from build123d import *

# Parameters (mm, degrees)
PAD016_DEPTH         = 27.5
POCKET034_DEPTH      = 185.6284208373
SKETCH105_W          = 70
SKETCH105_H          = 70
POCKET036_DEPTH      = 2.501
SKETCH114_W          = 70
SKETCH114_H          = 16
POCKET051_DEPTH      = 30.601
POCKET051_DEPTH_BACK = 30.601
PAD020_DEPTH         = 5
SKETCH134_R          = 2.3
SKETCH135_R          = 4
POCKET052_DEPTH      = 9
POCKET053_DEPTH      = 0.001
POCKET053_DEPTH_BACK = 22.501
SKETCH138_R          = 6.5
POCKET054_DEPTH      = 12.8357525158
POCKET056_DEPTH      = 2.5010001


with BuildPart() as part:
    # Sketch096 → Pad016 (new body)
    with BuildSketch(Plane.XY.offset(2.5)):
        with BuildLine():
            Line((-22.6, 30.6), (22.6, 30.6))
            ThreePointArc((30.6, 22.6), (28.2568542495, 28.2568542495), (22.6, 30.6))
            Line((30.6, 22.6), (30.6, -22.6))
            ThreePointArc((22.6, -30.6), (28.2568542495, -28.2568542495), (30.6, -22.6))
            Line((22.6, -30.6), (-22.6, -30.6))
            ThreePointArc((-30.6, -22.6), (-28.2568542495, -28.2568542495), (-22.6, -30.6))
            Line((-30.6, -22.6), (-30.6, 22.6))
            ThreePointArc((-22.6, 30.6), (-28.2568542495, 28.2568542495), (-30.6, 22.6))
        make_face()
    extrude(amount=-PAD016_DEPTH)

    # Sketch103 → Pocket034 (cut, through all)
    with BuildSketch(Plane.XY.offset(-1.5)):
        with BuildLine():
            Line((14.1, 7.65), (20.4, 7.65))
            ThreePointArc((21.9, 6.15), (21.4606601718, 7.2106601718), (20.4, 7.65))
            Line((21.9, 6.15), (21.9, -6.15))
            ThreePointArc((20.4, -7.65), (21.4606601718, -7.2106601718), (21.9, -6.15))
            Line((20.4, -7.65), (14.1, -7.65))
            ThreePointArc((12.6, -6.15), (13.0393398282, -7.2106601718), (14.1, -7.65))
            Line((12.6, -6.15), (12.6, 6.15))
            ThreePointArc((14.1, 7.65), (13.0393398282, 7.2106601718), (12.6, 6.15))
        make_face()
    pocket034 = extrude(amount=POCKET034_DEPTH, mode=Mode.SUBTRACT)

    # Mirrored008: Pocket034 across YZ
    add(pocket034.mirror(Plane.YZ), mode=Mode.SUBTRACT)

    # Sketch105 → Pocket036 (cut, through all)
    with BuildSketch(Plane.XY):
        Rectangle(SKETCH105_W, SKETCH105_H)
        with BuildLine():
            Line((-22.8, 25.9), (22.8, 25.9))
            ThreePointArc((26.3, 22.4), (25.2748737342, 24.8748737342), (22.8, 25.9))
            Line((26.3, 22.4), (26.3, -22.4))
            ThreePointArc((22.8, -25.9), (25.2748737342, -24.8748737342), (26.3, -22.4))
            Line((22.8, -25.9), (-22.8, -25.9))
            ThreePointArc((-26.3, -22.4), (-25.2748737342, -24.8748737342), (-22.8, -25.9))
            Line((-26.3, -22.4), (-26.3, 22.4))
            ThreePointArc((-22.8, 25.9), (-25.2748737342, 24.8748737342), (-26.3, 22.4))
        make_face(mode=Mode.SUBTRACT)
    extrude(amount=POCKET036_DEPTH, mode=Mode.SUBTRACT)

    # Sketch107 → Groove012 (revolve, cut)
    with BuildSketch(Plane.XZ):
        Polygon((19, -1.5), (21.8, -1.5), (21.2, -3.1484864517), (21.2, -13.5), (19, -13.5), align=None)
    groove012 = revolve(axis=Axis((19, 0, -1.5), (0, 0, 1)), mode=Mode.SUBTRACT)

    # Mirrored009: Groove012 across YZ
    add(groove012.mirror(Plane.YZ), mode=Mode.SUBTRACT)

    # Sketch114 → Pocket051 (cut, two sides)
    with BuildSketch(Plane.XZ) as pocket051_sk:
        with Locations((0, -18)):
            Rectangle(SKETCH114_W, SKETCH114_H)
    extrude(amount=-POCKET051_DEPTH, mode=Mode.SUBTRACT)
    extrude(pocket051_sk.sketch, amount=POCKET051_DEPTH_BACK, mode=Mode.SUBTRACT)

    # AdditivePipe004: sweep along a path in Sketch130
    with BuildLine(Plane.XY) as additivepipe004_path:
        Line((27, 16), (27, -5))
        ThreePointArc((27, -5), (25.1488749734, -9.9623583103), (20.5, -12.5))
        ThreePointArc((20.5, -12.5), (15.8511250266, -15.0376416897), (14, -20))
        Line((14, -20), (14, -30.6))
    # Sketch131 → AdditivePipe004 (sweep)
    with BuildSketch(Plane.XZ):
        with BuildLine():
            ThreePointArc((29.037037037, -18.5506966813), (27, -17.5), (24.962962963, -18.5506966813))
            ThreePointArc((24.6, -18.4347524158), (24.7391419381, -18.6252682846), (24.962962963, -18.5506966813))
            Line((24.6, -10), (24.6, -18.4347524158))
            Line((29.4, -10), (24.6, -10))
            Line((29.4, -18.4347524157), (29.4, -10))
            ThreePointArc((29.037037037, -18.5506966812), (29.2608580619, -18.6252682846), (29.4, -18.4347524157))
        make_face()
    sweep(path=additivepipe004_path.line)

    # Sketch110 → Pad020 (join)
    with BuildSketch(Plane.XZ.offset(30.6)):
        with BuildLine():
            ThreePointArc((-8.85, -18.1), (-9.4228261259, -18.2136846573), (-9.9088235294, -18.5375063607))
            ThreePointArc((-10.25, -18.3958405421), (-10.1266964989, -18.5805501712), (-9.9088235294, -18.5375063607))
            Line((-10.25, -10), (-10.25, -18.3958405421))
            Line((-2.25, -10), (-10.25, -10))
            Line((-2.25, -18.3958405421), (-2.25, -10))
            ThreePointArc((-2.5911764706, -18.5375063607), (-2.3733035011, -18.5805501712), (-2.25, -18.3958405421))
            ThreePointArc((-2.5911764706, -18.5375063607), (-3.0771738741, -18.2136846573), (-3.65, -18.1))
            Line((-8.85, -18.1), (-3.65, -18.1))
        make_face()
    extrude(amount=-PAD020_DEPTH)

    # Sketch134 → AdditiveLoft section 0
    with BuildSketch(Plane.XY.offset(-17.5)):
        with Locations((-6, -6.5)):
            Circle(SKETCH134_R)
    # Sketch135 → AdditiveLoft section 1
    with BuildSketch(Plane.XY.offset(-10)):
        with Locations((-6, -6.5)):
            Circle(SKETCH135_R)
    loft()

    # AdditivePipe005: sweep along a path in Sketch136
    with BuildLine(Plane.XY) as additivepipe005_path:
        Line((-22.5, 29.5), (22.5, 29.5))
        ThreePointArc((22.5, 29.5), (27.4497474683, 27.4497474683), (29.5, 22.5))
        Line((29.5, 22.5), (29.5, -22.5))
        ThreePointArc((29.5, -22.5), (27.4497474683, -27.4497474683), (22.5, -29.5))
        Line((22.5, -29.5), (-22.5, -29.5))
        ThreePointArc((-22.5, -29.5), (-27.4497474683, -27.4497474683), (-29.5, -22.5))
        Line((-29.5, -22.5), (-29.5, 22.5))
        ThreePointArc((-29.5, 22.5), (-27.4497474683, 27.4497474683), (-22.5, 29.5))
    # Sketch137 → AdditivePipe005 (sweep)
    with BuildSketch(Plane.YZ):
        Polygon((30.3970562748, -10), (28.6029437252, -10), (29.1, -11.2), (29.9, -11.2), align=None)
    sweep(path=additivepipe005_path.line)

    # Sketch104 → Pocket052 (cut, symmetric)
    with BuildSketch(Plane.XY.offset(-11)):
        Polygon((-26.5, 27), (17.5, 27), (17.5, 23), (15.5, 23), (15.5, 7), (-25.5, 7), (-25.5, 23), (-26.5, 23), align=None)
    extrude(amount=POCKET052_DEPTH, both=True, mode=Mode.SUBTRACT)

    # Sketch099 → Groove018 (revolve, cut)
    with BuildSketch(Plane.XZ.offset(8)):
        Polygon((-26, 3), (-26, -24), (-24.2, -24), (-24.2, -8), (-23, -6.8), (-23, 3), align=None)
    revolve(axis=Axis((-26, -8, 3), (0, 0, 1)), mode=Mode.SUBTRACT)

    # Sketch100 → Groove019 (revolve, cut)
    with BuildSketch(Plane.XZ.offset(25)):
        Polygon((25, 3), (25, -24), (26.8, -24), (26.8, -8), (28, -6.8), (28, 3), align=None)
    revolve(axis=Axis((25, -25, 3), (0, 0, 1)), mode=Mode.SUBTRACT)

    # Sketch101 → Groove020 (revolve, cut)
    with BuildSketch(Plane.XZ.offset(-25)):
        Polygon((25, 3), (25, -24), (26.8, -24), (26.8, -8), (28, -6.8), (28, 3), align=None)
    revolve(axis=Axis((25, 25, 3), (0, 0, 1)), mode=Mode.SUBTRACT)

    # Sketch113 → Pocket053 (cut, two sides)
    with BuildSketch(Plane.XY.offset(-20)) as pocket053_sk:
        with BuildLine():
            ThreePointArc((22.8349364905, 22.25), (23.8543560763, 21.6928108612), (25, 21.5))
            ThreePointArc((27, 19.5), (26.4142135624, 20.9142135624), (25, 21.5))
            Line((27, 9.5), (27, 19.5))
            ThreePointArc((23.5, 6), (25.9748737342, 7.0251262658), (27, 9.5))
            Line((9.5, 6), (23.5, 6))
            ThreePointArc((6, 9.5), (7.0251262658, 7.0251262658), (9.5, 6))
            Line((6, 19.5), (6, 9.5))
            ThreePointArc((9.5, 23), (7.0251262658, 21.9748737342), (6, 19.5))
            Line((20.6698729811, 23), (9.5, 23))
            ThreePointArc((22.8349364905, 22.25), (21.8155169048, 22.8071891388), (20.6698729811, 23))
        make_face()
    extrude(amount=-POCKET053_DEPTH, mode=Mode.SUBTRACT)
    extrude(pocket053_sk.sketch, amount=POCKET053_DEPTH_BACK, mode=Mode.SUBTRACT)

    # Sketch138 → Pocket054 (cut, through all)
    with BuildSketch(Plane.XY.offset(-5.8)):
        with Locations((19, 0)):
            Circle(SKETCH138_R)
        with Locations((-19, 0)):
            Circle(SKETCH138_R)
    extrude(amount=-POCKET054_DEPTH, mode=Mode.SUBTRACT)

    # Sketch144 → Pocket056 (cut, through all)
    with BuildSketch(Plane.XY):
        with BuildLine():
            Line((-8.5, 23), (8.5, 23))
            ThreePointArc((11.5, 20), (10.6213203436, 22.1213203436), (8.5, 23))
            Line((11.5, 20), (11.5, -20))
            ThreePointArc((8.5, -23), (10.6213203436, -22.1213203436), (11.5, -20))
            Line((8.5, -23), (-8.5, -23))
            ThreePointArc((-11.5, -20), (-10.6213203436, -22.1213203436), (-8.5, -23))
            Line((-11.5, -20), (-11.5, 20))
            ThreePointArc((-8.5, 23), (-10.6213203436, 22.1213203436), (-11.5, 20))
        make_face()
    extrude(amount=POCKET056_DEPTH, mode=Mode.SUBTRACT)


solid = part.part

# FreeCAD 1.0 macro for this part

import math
import FreeCAD as App
import Part
import Sketcher
Q = App.Units.Quantity

doc = App.newDocument("Part")
body = doc.addObject("PartDesign::Body", "Body")

# Sketch on XY plane
sketch1 = doc.addObject("Sketcher::SketchObject", "Sketch")
body.addObject(sketch1)
sketch1.AttachmentSupport = (doc.XY_Plane, [""])
sketch1.MapMode = "FlatFace"
sketch1.AttachmentOffset = App.Placement(App.Vector(0, 0, 2.5), App.Rotation())
sketch1.addGeometry([
    Part.LineSegment(App.Vector(23, 31, 0), App.Vector(-23, 31, 0)),  # 0
    Part.ArcOfCircle(Part.Circle(App.Vector(-23, 23, 0), App.Vector(0, 0, 1), 8), math.radians(90), math.radians(180)),  # 1
    Part.LineSegment(App.Vector(-31, 23, 0), App.Vector(-31, -23, 0)),  # 2
    Part.ArcOfCircle(Part.Circle(App.Vector(-23, -23, 0), App.Vector(0, 0, 1), 8), math.radians(180), math.radians(270)),  # 3
    Part.LineSegment(App.Vector(-23, -31, 0), App.Vector(23, -31, 0)),  # 4
    Part.ArcOfCircle(Part.Circle(App.Vector(23, -23, 0), App.Vector(0, 0, 1), 8), math.radians(-90), math.radians(0)),  # 5
    Part.LineSegment(App.Vector(31, -23, 0), App.Vector(31, 23, 0)),  # 6
    Part.ArcOfCircle(Part.Circle(App.Vector(23, 23, 0), App.Vector(0, 0, 1), 8), math.radians(0), math.radians(90)),  # 7
], False)
sketch1.addConstraint([
    Sketcher.Constraint("Tangent", 0, 2, 1, 1),
    Sketcher.Constraint("Tangent", 1, 2, 2, 1),
    Sketcher.Constraint("Tangent", 2, 2, 3, 1),
    Sketcher.Constraint("Tangent", 3, 2, 4, 1),
    Sketcher.Constraint("Tangent", 4, 2, 5, 1),
    Sketcher.Constraint("Tangent", 5, 2, 6, 1),
    Sketcher.Constraint("Tangent", 6, 2, 7, 1),
    Sketcher.Constraint("Tangent", 7, 2, 0, 1),
    Sketcher.Constraint("Horizontal", 0),
    Sketcher.Constraint("Vertical", 2),
    Sketcher.Constraint("Horizontal", 4),
    Sketcher.Constraint("Vertical", 6),
    Sketcher.Constraint("Equal", 1, 3),
    Sketcher.Constraint("Equal", 3, 5),
    Sketcher.Constraint("Equal", 5, 7),
    Sketcher.Constraint("Symmetric", 1, 3, 5, 3, -1, 1),
    Sketcher.Constraint("Equal", 4, 2),
    Sketcher.Constraint("Radius", 1, Q("8 mm")),
    Sketcher.Constraint("DistanceX", 0, 2, 0, 1, Q("45.2 mm")),
])
pad1 = doc.addObject("PartDesign::Pad", "Pad")
body.addObject(pad1)
pad1.Profile = sketch1
pad1.Length = 27.5
pad1.Reversed = True

# Sketch on XY plane
sketch2 = doc.addObject("Sketcher::SketchObject", "Sketch001")
body.addObject(sketch2)
sketch2.AttachmentSupport = (doc.XY_Plane, [""])
sketch2.MapMode = "FlatFace"
sketch2.AttachmentOffset = App.Placement(App.Vector(0, 0, -1.5), App.Rotation())
sketch2.addGeometry([
    Part.LineSegment(App.Vector(20.4, 7.7, 0), App.Vector(14.1, 7.7, 0)),  # 0
    Part.ArcOfCircle(Part.Circle(App.Vector(14.1, 6.2, 0), App.Vector(0, 0, 1), 1.5), math.radians(90), math.radians(180)),  # 1
    Part.LineSegment(App.Vector(12.6, 6.2, 0), App.Vector(12.6, -6.2, 0)),  # 2
    Part.ArcOfCircle(Part.Circle(App.Vector(14.1, -6.2, 0), App.Vector(0, 0, 1), 1.5), math.radians(180), math.radians(270)),  # 3
    Part.LineSegment(App.Vector(14.1, -7.7, 0), App.Vector(20.4, -7.7, 0)),  # 4
    Part.ArcOfCircle(Part.Circle(App.Vector(20.4, -6.2, 0), App.Vector(0, 0, 1), 1.5), math.radians(-90), math.radians(0)),  # 5
    Part.LineSegment(App.Vector(21.9, -6.2, 0), App.Vector(21.9, 6.2, 0)),  # 6
    Part.ArcOfCircle(Part.Circle(App.Vector(20.4, 6.2, 0), App.Vector(0, 0, 1), 1.5), math.radians(0), math.radians(90)),  # 7
], False)
sketch2.addConstraint([
    Sketcher.Constraint("Tangent", 0, 2, 1, 1),
    Sketcher.Constraint("Tangent", 1, 2, 2, 1),
    Sketcher.Constraint("Tangent", 2, 2, 3, 1),
    Sketcher.Constraint("Tangent", 3, 2, 4, 1),
    Sketcher.Constraint("Tangent", 4, 2, 5, 1),
    Sketcher.Constraint("Tangent", 5, 2, 6, 1),
    Sketcher.Constraint("Tangent", 6, 2, 7, 1),
    Sketcher.Constraint("Tangent", 7, 2, 0, 1),
    Sketcher.Constraint("Horizontal", 0),
    Sketcher.Constraint("Vertical", 2),
    Sketcher.Constraint("Horizontal", 4),
    Sketcher.Constraint("Vertical", 6),
    Sketcher.Constraint("Equal", 1, 3),
    Sketcher.Constraint("Equal", 3, 5),
    Sketcher.Constraint("Equal", 5, 7),
    Sketcher.Constraint("Radius", 1, Q("1.5 mm")),
    Sketcher.Constraint("DistanceX", 0, 2, 0, 1, Q("6.3 mm")),
    Sketcher.Constraint("DistanceY", 2, 2, 2, 1, Q("12.3 mm")),
    Sketcher.Constraint("DistanceX", -1, 1, 1, 3, Q("14.1 mm")),
    Sketcher.Constraint("DistanceY", -1, 1, 1, 3, Q("6.15 mm")),
])
pocket1 = doc.addObject("PartDesign::Pocket", "Pocket")
body.addObject(pocket1)
pocket1.Profile = sketch2
pocket1.Type = "ThroughAll"
pocket1.Reversed = True
doc.recompute()

mirrored = doc.addObject("PartDesign::Mirrored", "Mirrored")
body.addObject(mirrored)
mirrored.Originals = [pocket1]
mirrored.MirrorPlane = (doc.YZ_Plane, [""])
body.Tip = mirrored

# Sketch on XY plane
sketch3 = doc.addObject("Sketcher::SketchObject", "Sketch002")
body.addObject(sketch3)
sketch3.AttachmentSupport = (doc.XY_Plane, [""])
sketch3.MapMode = "FlatFace"
sketch3.addGeometry([
    Part.LineSegment(App.Vector(-35, 35, 0), App.Vector(-35, -35, 0)),  # 0
    Part.LineSegment(App.Vector(-35, -35, 0), App.Vector(35, -35, 0)),  # 1
    Part.LineSegment(App.Vector(35, -35, 0), App.Vector(35, 35, 0)),  # 2
    Part.LineSegment(App.Vector(35, 35, 0), App.Vector(-35, 35, 0)),  # 3
    Part.ArcOfCircle(Part.Circle(App.Vector(-22.8, 22.4, 0), App.Vector(0, 0, 1), 3.5), math.radians(90), math.radians(180)),  # 4
    Part.LineSegment(App.Vector(-22.8, 25.9, 0), App.Vector(22.8, 25.9, 0)),  # 5
    Part.ArcOfCircle(Part.Circle(App.Vector(22.8, 22.4, 0), App.Vector(0, 0, 1), 3.5), math.radians(0), math.radians(90)),  # 6
    Part.LineSegment(App.Vector(26.3, 22.4, 0), App.Vector(26.3, -22.4, 0)),  # 7
    Part.ArcOfCircle(Part.Circle(App.Vector(22.8, -22.4, 0), App.Vector(0, 0, 1), 3.5), math.radians(-90), math.radians(0)),  # 8
    Part.LineSegment(App.Vector(22.8, -25.9, 0), App.Vector(-22.8, -25.9, 0)),  # 9
    Part.ArcOfCircle(Part.Circle(App.Vector(-22.8, -22.4, 0), App.Vector(0, 0, 1), 3.5), math.radians(180), math.radians(270)),  # 10
    Part.LineSegment(App.Vector(-26.3, -22.4, 0), App.Vector(-26.3, 22.4, 0)),  # 11
], False)
sketch3.addConstraint([
    Sketcher.Constraint("Coincident", 0, 2, 1, 1),
    Sketcher.Constraint("Coincident", 1, 2, 2, 1),
    Sketcher.Constraint("Coincident", 2, 2, 3, 1),
    Sketcher.Constraint("Coincident", 3, 2, 0, 1),
    Sketcher.Constraint("Tangent", 4, 1, 5, 1),
    Sketcher.Constraint("Tangent", 5, 2, 6, 2),
    Sketcher.Constraint("Tangent", 6, 1, 7, 1),
    Sketcher.Constraint("Tangent", 7, 2, 8, 2),
    Sketcher.Constraint("Tangent", 8, 1, 9, 1),
    Sketcher.Constraint("Tangent", 9, 2, 10, 2),
    Sketcher.Constraint("Tangent", 10, 1, 11, 1),
    Sketcher.Constraint("Tangent", 11, 2, 4, 2),
    Sketcher.Constraint("Vertical", 0),
    Sketcher.Constraint("Horizontal", 1),
    Sketcher.Constraint("Vertical", 2),
    Sketcher.Constraint("Horizontal", 3),
    Sketcher.Constraint("Horizontal", 5),
    Sketcher.Constraint("Vertical", 7),
    Sketcher.Constraint("Horizontal", 9),
    Sketcher.Constraint("Vertical", 11),
    Sketcher.Constraint("Equal", 4, 6),
    Sketcher.Constraint("Equal", 6, 8),
    Sketcher.Constraint("Equal", 8, 10),
    Sketcher.Constraint("Symmetric", 4, 3, 8, 3, -1, 1),
    Sketcher.Constraint("Symmetric", 0, 2, 2, 2, -1, 1),
    Sketcher.Constraint("Equal", 3, 0),
    Sketcher.Constraint("Radius", 4, Q("3.5 mm")),
    Sketcher.Constraint("DistanceX", 1, 1, 1, 2, Q("70 mm")),
    Sketcher.Constraint("DistanceX", 5, 1, 5, 2, Q("45.6 mm")),
    Sketcher.Constraint("DistanceY", 7, 2, 7, 1, Q("44.8 mm")),
])
pocket2 = doc.addObject("PartDesign::Pocket", "Pocket001")
body.addObject(pocket2)
pocket2.Profile = sketch3
pocket2.Type = "ThroughAll"
pocket2.Reversed = True

# Sketch on XZ plane
sketch4 = doc.addObject("Sketcher::SketchObject", "Sketch003")
body.addObject(sketch4)
sketch4.AttachmentSupport = (doc.XZ_Plane, [""])
sketch4.MapMode = "FlatFace"
sketch4.addGeometry([
    Part.LineSegment(App.Vector(21.8, -1.5, 0), App.Vector(19, -1.5, 0)),  # 0
    Part.LineSegment(App.Vector(19, -1.5, 0), App.Vector(19, -13.5, 0)),  # 1
    Part.LineSegment(App.Vector(19, -13.5, 0), App.Vector(21.2, -13.5, 0)),  # 2
    Part.LineSegment(App.Vector(21.2, -13.5, 0), App.Vector(21.2, -3.1, 0)),  # 3
    Part.LineSegment(App.Vector(21.2, -3.1, 0), App.Vector(21.8, -1.5, 0)),  # 4
], False)
sketch4.addGeometry(Part.LineSegment(App.Vector(19, -13.5, 0), App.Vector(19, -1.5, 0)), True)  # axis
sketch4.addConstraint([
    Sketcher.Constraint("Coincident", 0, 2, 1, 1),
    Sketcher.Constraint("Coincident", 1, 2, 2, 1),
    Sketcher.Constraint("Coincident", 2, 2, 3, 1),
    Sketcher.Constraint("Coincident", 3, 2, 4, 1),
    Sketcher.Constraint("Coincident", 4, 2, 0, 1),
    Sketcher.Constraint("Horizontal", 0),
    Sketcher.Constraint("Vertical", 1),
    Sketcher.Constraint("Horizontal", 2),
    Sketcher.Constraint("Vertical", 3),
    Sketcher.Constraint("Vertical", 5),
    Sketcher.Constraint("Coincident", 5, 1, 1, 2),
    Sketcher.Constraint("Horizontal", 4, 2, 5, 2),
    Sketcher.Constraint("DistanceY", 1, 2, 1, 1, Q("12 mm")),
    Sketcher.Constraint("Angle", 4, Q("70 deg")),
    Sketcher.Constraint("DistanceX", 0, 2, 0, 1, Q("2.8 mm")),
    Sketcher.Constraint("DistanceX", 2, 1, 2, 2, Q("2.2 mm")),
    Sketcher.Constraint("DistanceX", -1, 1, 0, 2, Q("19 mm")),
    Sketcher.Constraint("DistanceY", 0, 2, -1, 1, Q("1.5 mm")),
])
groove = doc.addObject("PartDesign::Groove", "Groove")
body.addObject(groove)
groove.Profile = sketch4
groove.ReferenceAxis = (sketch4, ["Axis0"])
groove.Angle = 360
doc.recompute()

mirrored2 = doc.addObject("PartDesign::Mirrored", "Mirrored001")
body.addObject(mirrored2)
mirrored2.Originals = [groove]
mirrored2.MirrorPlane = (doc.YZ_Plane, [""])
body.Tip = mirrored2

# Sketch on XZ plane
sketch5 = doc.addObject("Sketcher::SketchObject", "Sketch004")
body.addObject(sketch5)
sketch5.AttachmentSupport = (doc.XZ_Plane, [""])
sketch5.MapMode = "FlatFace"
sketch5.addGeometry([
    Part.LineSegment(App.Vector(-35, -10, 0), App.Vector(-35, -26, 0)),
    Part.LineSegment(App.Vector(-35, -26, 0), App.Vector(35, -26, 0)),
    Part.LineSegment(App.Vector(35, -26, 0), App.Vector(35, -10, 0)),
    Part.LineSegment(App.Vector(35, -10, 0), App.Vector(-35, -10, 0)),
], False)
sketch5.addConstraint([
    Sketcher.Constraint("Coincident", 0, 2, 1, 1),
    Sketcher.Constraint("Coincident", 1, 2, 2, 1),
    Sketcher.Constraint("Coincident", 2, 2, 3, 1),
    Sketcher.Constraint("Coincident", 3, 2, 0, 1),
    Sketcher.Constraint("Vertical", 0),
    Sketcher.Constraint("Horizontal", 1),
    Sketcher.Constraint("Vertical", 2),
    Sketcher.Constraint("Horizontal", 3),
    Sketcher.Constraint("DistanceX", 1, 1, 1, 2, Q("70 mm")),
    Sketcher.Constraint("DistanceY", 0, 2, 0, 1, Q("16 mm")),
    Sketcher.Constraint("DistanceX", 0, 2, -1, 1, Q("35 mm")),
    Sketcher.Constraint("DistanceY", 0, 2, -1, 1, Q("26 mm")),
])
pocket3 = doc.addObject("PartDesign::Pocket", "Pocket002")
body.addObject(pocket3)
pocket3.Profile = sketch5
pocket3.Type = "ThroughAll"
pocket3.Midplane = True

# Sketch on XZ plane
sketch6 = doc.addObject("Sketcher::SketchObject", "Sketch005")
body.addObject(sketch6)
sketch6.AttachmentSupport = (doc.XZ_Plane, [""])
sketch6.MapMode = "FlatFace"
sketch6.addGeometry([
    Part.ArcOfCircle(Part.Circle(App.Vector(27, -20, 0), App.Vector(0, 0, 1), 2.5), math.radians(35), math.radians(145)),  # 0
    Part.ArcOfCircle(Part.Circle(App.Vector(29.2, -18.43, 0), App.Vector(0, 0, 1), 0.2), math.radians(-145), math.radians(0)),  # 1
    Part.LineSegment(App.Vector(29.4, -18.43, 0), App.Vector(29.4, -10, 0)),  # 2
    Part.LineSegment(App.Vector(29.4, -10, 0), App.Vector(24.6, -10, 0)),  # 3
    Part.LineSegment(App.Vector(24.6, -10, 0), App.Vector(24.6, -18.43, 0)),  # 4
    Part.ArcOfCircle(Part.Circle(App.Vector(24.8, -18.43, 0), App.Vector(0, 0, 1), 0.2), math.radians(180), math.radians(325)),  # 5
], False)
sketch6.addConstraint([
    Sketcher.Constraint("Tangent", 0, 1, 1, 1),
    Sketcher.Constraint("Tangent", 1, 2, 2, 1),
    Sketcher.Constraint("Coincident", 2, 2, 3, 1),
    Sketcher.Constraint("Coincident", 3, 2, 4, 1),
    Sketcher.Constraint("Tangent", 4, 2, 5, 1),
    Sketcher.Constraint("Tangent", 5, 2, 0, 2),
    Sketcher.Constraint("Vertical", 2),
    Sketcher.Constraint("Horizontal", 3),
    Sketcher.Constraint("Vertical", 4),
    Sketcher.Constraint("Equal", 1, 5),
    Sketcher.Constraint("Horizontal", 1, 3, 5, 3),
    Sketcher.Constraint("Radius", 0, Q("2.5 mm")),
    Sketcher.Constraint("Radius", 1, Q("0.2 mm")),
    Sketcher.Constraint("DistanceX", 3, 2, 3, 1, Q("4.8 mm")),
    Sketcher.Constraint("DistanceX", -1, 1, 0, 3, Q("27 mm")),
    Sketcher.Constraint("DistanceY", 0, 3, -1, 1, Q("20 mm")),
    Sketcher.Constraint("DistanceY", 2, 2, -1, 1, Q("10 mm")),
])

# Sketch on XY plane
sketch7 = doc.addObject("Sketcher::SketchObject", "Sketch006")
body.addObject(sketch7)
sketch7.AttachmentSupport = (doc.XY_Plane, [""])
sketch7.MapMode = "FlatFace"
sketch7.addGeometry([
    Part.LineSegment(App.Vector(27, 16, 0), App.Vector(27, -5, 0)),
    Part.ArcOfCircle(Part.Circle(App.Vector(19, -5, 0), App.Vector(0, 0, 1), 8), math.radians(-82), math.radians(0)),
    Part.ArcOfCircle(Part.Circle(App.Vector(22, -20, 0), App.Vector(0, 0, 1), 8), math.radians(98), math.radians(180)),
    Part.LineSegment(App.Vector(14, -20, 0), App.Vector(14, -31, 0)),
], False)
sketch7.addConstraint([
    Sketcher.Constraint("Tangent", 0, 2, 1, 2),
    Sketcher.Constraint("Tangent", 1, 1, 2, 1),
    Sketcher.Constraint("Tangent", 2, 2, 3, 1),
    Sketcher.Constraint("Vertical", 0),
    Sketcher.Constraint("Vertical", 3),
    Sketcher.Constraint("Equal", 1, 2),
    Sketcher.Constraint("DistanceY", 0, 2, 0, 1, Q("21 mm")),
    Sketcher.Constraint("DistanceY", 3, 2, 3, 1, Q("10.6 mm")),
    Sketcher.Constraint("DistanceY", 1, 3, -1, 1, Q("5 mm")),
    Sketcher.Constraint("DistanceY", 2, 3, -1, 1, Q("20 mm")),
    Sketcher.Constraint("DistanceX", -1, 1, 0, 1, Q("27 mm")),
    Sketcher.Constraint("DistanceX", -1, 1, 2, 2, Q("14 mm")),
])
doc.recompute()

additivepipe = doc.addObject("PartDesign::AdditivePipe", "AdditivePipe")
body.addObject(additivepipe)
additivepipe.Profile = sketch6
additivepipe.Spine = (sketch7, ["Edge1", "Edge2", "Edge3", "Edge4"])

# Sketch on XZ plane
sketch8 = doc.addObject("Sketcher::SketchObject", "Sketch007")
body.addObject(sketch8)
sketch8.AttachmentSupport = (doc.XZ_Plane, [""])
sketch8.MapMode = "FlatFace"
sketch8.AttachmentOffset = App.Placement(App.Vector(0, 0, 30.6), App.Rotation())
sketch8.addGeometry([
    Part.ArcOfCircle(Part.Circle(App.Vector(-8.85, -19.6, 0), App.Vector(0, 0, 1), 1.5), math.radians(90), math.radians(135)),  # 0
    Part.LineSegment(App.Vector(-8.85, -18.1, 0), App.Vector(-3.65, -18.1, 0)),  # 1
    Part.ArcOfCircle(Part.Circle(App.Vector(-3.65, -19.6, 0), App.Vector(0, 0, 1), 1.5), math.radians(45), math.radians(90)),  # 2
    Part.ArcOfCircle(Part.Circle(App.Vector(-2.45, -18.4, 0), App.Vector(0, 0, 1), 0.2), math.radians(-135), math.radians(0)),  # 3
    Part.LineSegment(App.Vector(-2.25, -18.4, 0), App.Vector(-2.25, -10, 0)),  # 4
    Part.LineSegment(App.Vector(-2.25, -10, 0), App.Vector(-10.25, -10, 0)),  # 5
    Part.LineSegment(App.Vector(-10.25, -10, 0), App.Vector(-10.25, -18.4, 0)),  # 6
    Part.ArcOfCircle(Part.Circle(App.Vector(-10.05, -18.4, 0), App.Vector(0, 0, 1), 0.2), math.radians(180), math.radians(315)),  # 7
], False)
sketch8.addConstraint([
    Sketcher.Constraint("Tangent", 0, 1, 1, 1),
    Sketcher.Constraint("Tangent", 1, 2, 2, 2),
    Sketcher.Constraint("Tangent", 2, 1, 3, 1),
    Sketcher.Constraint("Tangent", 3, 2, 4, 1),
    Sketcher.Constraint("Coincident", 4, 2, 5, 1),
    Sketcher.Constraint("Coincident", 5, 2, 6, 1),
    Sketcher.Constraint("Tangent", 6, 2, 7, 1),
    Sketcher.Constraint("Tangent", 7, 2, 0, 2),
    Sketcher.Constraint("Horizontal", 1),
    Sketcher.Constraint("Vertical", 4),
    Sketcher.Constraint("Horizontal", 5),
    Sketcher.Constraint("Vertical", 6),
    Sketcher.Constraint("Equal", 0, 2),
    Sketcher.Constraint("Equal", 3, 7),
    Sketcher.Constraint("Horizontal", 3, 3, 7, 3),
    Sketcher.Constraint("Radius", 0, Q("1.5 mm")),
    Sketcher.Constraint("Radius", 3, Q("0.2 mm")),
    Sketcher.Constraint("DistanceX", 5, 2, 5, 1, Q("8 mm")),
    Sketcher.Constraint("DistanceX", 1, 1, 1, 2, Q("5.2 mm")),
    Sketcher.Constraint("DistanceY", 4, 2, -1, 1, Q("10 mm")),
    Sketcher.Constraint("DistanceY", 0, 3, -1, 1, Q("19.6 mm")),
    Sketcher.Constraint("DistanceX", 0, 3, -1, 1, Q("8.85 mm")),
])
pad2 = doc.addObject("PartDesign::Pad", "Pad001")
body.addObject(pad2)
pad2.Profile = sketch8
pad2.Length = 5
pad2.Reversed = True

# Sketch on XY plane
sketch9 = doc.addObject("Sketcher::SketchObject", "Sketch008")
body.addObject(sketch9)
sketch9.AttachmentSupport = (doc.XY_Plane, [""])
sketch9.MapMode = "FlatFace"
sketch9.AttachmentOffset = App.Placement(App.Vector(0, 0, -17.5), App.Rotation())
sketch9.addGeometry(Part.Circle(App.Vector(-6, -6.5, 0), App.Vector(0, 0, 1), 2.3), False)
sketch9.addConstraint([
    Sketcher.Constraint("Diameter", 0, Q("4.6 mm")),
    Sketcher.Constraint("DistanceX", 0, 3, -1, 1, Q("6 mm")),
    Sketcher.Constraint("DistanceY", 0, 3, -1, 1, Q("6.5 mm")),
])

# Sketch on XY plane
sketch10 = doc.addObject("Sketcher::SketchObject", "Sketch009")
body.addObject(sketch10)
sketch10.AttachmentSupport = (doc.XY_Plane, [""])
sketch10.MapMode = "FlatFace"
sketch10.AttachmentOffset = App.Placement(App.Vector(0, 0, -10), App.Rotation())
sketch10.addGeometry(Part.Circle(App.Vector(-6, -6.5, 0), App.Vector(0, 0, 1), 4), False)
sketch10.addConstraint([
    Sketcher.Constraint("Diameter", 0, Q("8 mm")),
    Sketcher.Constraint("DistanceX", 0, 3, -1, 1, Q("6 mm")),
    Sketcher.Constraint("DistanceY", 0, 3, -1, 1, Q("6.5 mm")),
])

additiveloft = doc.addObject("PartDesign::AdditiveLoft", "AdditiveLoft")
body.addObject(additiveloft)
additiveloft.Profile = sketch9
additiveloft.Sections = [sketch10]

# Sketch on YZ plane
sketch11 = doc.addObject("Sketcher::SketchObject", "Sketch010")
body.addObject(sketch11)
sketch11.AttachmentSupport = (doc.YZ_Plane, [""])
sketch11.MapMode = "FlatFace"
sketch11.addGeometry([
    Part.LineSegment(App.Vector(30.4, -10, 0), App.Vector(28.6, -10, 0)),
    Part.LineSegment(App.Vector(28.6, -10, 0), App.Vector(29.1, -11.2, 0)),
    Part.LineSegment(App.Vector(29.1, -11.2, 0), App.Vector(29.9, -11.2, 0)),
    Part.LineSegment(App.Vector(29.9, -11.2, 0), App.Vector(30.4, -10, 0)),
], False)
sketch11.addConstraint([
    Sketcher.Constraint("Coincident", 0, 2, 1, 1),
    Sketcher.Constraint("Coincident", 1, 2, 2, 1),
    Sketcher.Constraint("Coincident", 2, 2, 3, 1),
    Sketcher.Constraint("Coincident", 3, 2, 0, 1),
    Sketcher.Constraint("Horizontal", 0),
    Sketcher.Constraint("Horizontal", 2),
    Sketcher.Constraint("Equal", 1, 3),
    Sketcher.Constraint("DistanceX", 2, 1, 2, 2, Q("0.8 mm")),
    Sketcher.Constraint("DistanceY", 0, 2, -1, 1, Q("10 mm")),
    Sketcher.Constraint("Angle", 1, Q("-67.5 deg")),
    Sketcher.Constraint("DistanceX", -1, 1, 1, 2, Q("29.1 mm")),
    Sketcher.Constraint("DistanceY", 1, 2, -1, 1, Q("11.2 mm")),
])

# Sketch on XY plane
sketch12 = doc.addObject("Sketcher::SketchObject", "Sketch011")
body.addObject(sketch12)
sketch12.AttachmentSupport = (doc.XY_Plane, [""])
sketch12.MapMode = "FlatFace"
sketch12.addGeometry([
    Part.LineSegment(App.Vector(-22, 30, 0), App.Vector(22, 30, 0)),  # 0
    Part.ArcOfCircle(Part.Circle(App.Vector(22, 22, 0), App.Vector(0, 0, 1), 7), math.radians(0), math.radians(90)),  # 1
    Part.LineSegment(App.Vector(30, 22, 0), App.Vector(30, -22, 0)),  # 2
    Part.ArcOfCircle(Part.Circle(App.Vector(22, -22, 0), App.Vector(0, 0, 1), 7), math.radians(-90), math.radians(0)),  # 3
    Part.LineSegment(App.Vector(22, -30, 0), App.Vector(-22, -30, 0)),  # 4
    Part.ArcOfCircle(Part.Circle(App.Vector(-22, -22, 0), App.Vector(0, 0, 1), 7), math.radians(180), math.radians(270)),  # 5
    Part.LineSegment(App.Vector(-30, -22, 0), App.Vector(-30, 22, 0)),  # 6
    Part.ArcOfCircle(Part.Circle(App.Vector(-22, 22, 0), App.Vector(0, 0, 1), 7), math.radians(90), math.radians(180)),  # 7
], False)
sketch12.addConstraint([
    Sketcher.Constraint("Tangent", 0, 2, 1, 2),
    Sketcher.Constraint("Tangent", 1, 1, 2, 1),
    Sketcher.Constraint("Tangent", 2, 2, 3, 2),
    Sketcher.Constraint("Tangent", 3, 1, 4, 1),
    Sketcher.Constraint("Tangent", 4, 2, 5, 2),
    Sketcher.Constraint("Tangent", 5, 1, 6, 1),
    Sketcher.Constraint("Tangent", 6, 2, 7, 2),
    Sketcher.Constraint("Tangent", 7, 1, 0, 1),
    Sketcher.Constraint("Horizontal", 0),
    Sketcher.Constraint("Vertical", 2),
    Sketcher.Constraint("Horizontal", 4),
    Sketcher.Constraint("Vertical", 6),
    Sketcher.Constraint("Equal", 1, 3),
    Sketcher.Constraint("Equal", 3, 5),
    Sketcher.Constraint("Equal", 5, 7),
    Sketcher.Constraint("Symmetric", 1, 3, 5, 3, -1, 1),
    Sketcher.Constraint("Equal", 4, 2),
    Sketcher.Constraint("Radius", 1, Q("7 mm")),
    Sketcher.Constraint("DistanceX", 0, 1, 0, 2, Q("45 mm")),
])
doc.recompute()

additivepipe2 = doc.addObject("PartDesign::AdditivePipe", "AdditivePipe001")
body.addObject(additivepipe2)
additivepipe2.Profile = sketch11
additivepipe2.Spine = (sketch12, ["Edge1", "Edge2", "Edge3", "Edge4", "Edge5", "Edge6", "Edge7", "Edge8"])

# Sketch on XY plane
sketch13 = doc.addObject("Sketcher::SketchObject", "Sketch012")
body.addObject(sketch13)
sketch13.AttachmentSupport = (doc.XY_Plane, [""])
sketch13.MapMode = "FlatFace"
sketch13.AttachmentOffset = App.Placement(App.Vector(0, 0, -11), App.Rotation())
sketch13.addGeometry([
    Part.LineSegment(App.Vector(17.5, 27, 0), App.Vector(-26.5, 27, 0)),  # 0
    Part.LineSegment(App.Vector(-26.5, 27, 0), App.Vector(-26.5, 23, 0)),  # 1
    Part.LineSegment(App.Vector(-26.5, 23, 0), App.Vector(-25.5, 23, 0)),  # 2
    Part.LineSegment(App.Vector(-25.5, 23, 0), App.Vector(-25.5, 7, 0)),  # 3
    Part.LineSegment(App.Vector(-25.5, 7, 0), App.Vector(15.5, 7, 0)),  # 4
    Part.LineSegment(App.Vector(15.5, 7, 0), App.Vector(15.5, 23, 0)),  # 5
    Part.LineSegment(App.Vector(15.5, 23, 0), App.Vector(17.5, 23, 0)),  # 6
    Part.LineSegment(App.Vector(17.5, 23, 0), App.Vector(17.5, 27, 0)),  # 7
], False)
sketch13.addConstraint([
    Sketcher.Constraint("Coincident", 0, 2, 1, 1),
    Sketcher.Constraint("Coincident", 1, 2, 2, 1),
    Sketcher.Constraint("Coincident", 2, 2, 3, 1),
    Sketcher.Constraint("Coincident", 3, 2, 4, 1),
    Sketcher.Constraint("Coincident", 4, 2, 5, 1),
    Sketcher.Constraint("Coincident", 5, 2, 6, 1),
    Sketcher.Constraint("Coincident", 6, 2, 7, 1),
    Sketcher.Constraint("Coincident", 7, 2, 0, 1),
    Sketcher.Constraint("Horizontal", 0),
    Sketcher.Constraint("Vertical", 1),
    Sketcher.Constraint("Horizontal", 2),
    Sketcher.Constraint("Vertical", 3),
    Sketcher.Constraint("Horizontal", 4),
    Sketcher.Constraint("Vertical", 5),
    Sketcher.Constraint("Horizontal", 6),
    Sketcher.Constraint("Vertical", 7),
    Sketcher.Constraint("Horizontal", 2, 2, 5, 2),
    Sketcher.Constraint("DistanceX", 0, 2, 0, 1, Q("44 mm")),
    Sketcher.Constraint("DistanceX", 2, 1, 2, 2, Q("1 mm")),
    Sketcher.Constraint("DistanceX", 4, 1, 4, 2, Q("41 mm")),
    Sketcher.Constraint("DistanceY", 1, 2, 1, 1, Q("4 mm")),
    Sketcher.Constraint("DistanceY", 3, 2, 3, 1, Q("16 mm")),
    Sketcher.Constraint("DistanceY", -1, 1, 0, 2, Q("27 mm")),
    Sketcher.Constraint("DistanceX", 0, 2, -1, 1, Q("26.5 mm")),
])
pocket4 = doc.addObject("PartDesign::Pocket", "Pocket003")
body.addObject(pocket4)
pocket4.Profile = sketch13
pocket4.Length = 18
pocket4.Midplane = True

# Sketch on XZ plane
sketch14 = doc.addObject("Sketcher::SketchObject", "Sketch013")
body.addObject(sketch14)
sketch14.AttachmentSupport = (doc.XZ_Plane, [""])
sketch14.MapMode = "FlatFace"
sketch14.AttachmentOffset = App.Placement(App.Vector(0, 0, 8), App.Rotation())
sketch14.addGeometry([
    Part.LineSegment(App.Vector(-26, 3, 0), App.Vector(-26, -24, 0)),  # 0
    Part.LineSegment(App.Vector(-26, -24, 0), App.Vector(-24.2, -24, 0)),  # 1
    Part.LineSegment(App.Vector(-24.2, -24, 0), App.Vector(-24.2, -8, 0)),  # 2
    Part.LineSegment(App.Vector(-24.2, -8, 0), App.Vector(-23, -6.8, 0)),  # 3
    Part.LineSegment(App.Vector(-23, -6.8, 0), App.Vector(-23, 3, 0)),  # 4
    Part.LineSegment(App.Vector(-23, 3, 0), App.Vector(-26, 3, 0)),  # 5
], False)
sketch14.addGeometry(Part.LineSegment(App.Vector(-26, -24, 0), App.Vector(-26, 3, 0)), True)  # axis
sketch14.addConstraint([
    Sketcher.Constraint("Coincident", 0, 2, 1, 1),
    Sketcher.Constraint("Coincident", 1, 2, 2, 1),
    Sketcher.Constraint("Coincident", 2, 2, 3, 1),
    Sketcher.Constraint("Coincident", 3, 2, 4, 1),
    Sketcher.Constraint("Coincident", 4, 2, 5, 1),
    Sketcher.Constraint("Coincident", 5, 2, 0, 1),
    Sketcher.Constraint("Vertical", 0),
    Sketcher.Constraint("Horizontal", 1),
    Sketcher.Constraint("Vertical", 2),
    Sketcher.Constraint("Vertical", 4),
    Sketcher.Constraint("Horizontal", 5),
    Sketcher.Constraint("Vertical", 6),
    Sketcher.Constraint("Coincident", 6, 1, 0, 2),
    Sketcher.Constraint("Horizontal", 4, 2, 6, 2),
    Sketcher.Constraint("DistanceX", 5, 2, 5, 1, Q("3 mm")),
    Sketcher.Constraint("DistanceY", 0, 2, 0, 1, Q("27 mm")),
    Sketcher.Constraint("DistanceY", 2, 1, 2, 2, Q("16 mm")),
    Sketcher.Constraint("Angle", 3, Q("45 deg")),
    Sketcher.Constraint("DistanceX", 1, 1, 1, 2, Q("1.8 mm")),
    Sketcher.Constraint("DistanceX", 0, 2, -1, 1, Q("26 mm")),
    Sketcher.Constraint("DistanceY", 0, 2, -1, 1, Q("24 mm")),
])
groove2 = doc.addObject("PartDesign::Groove", "Groove001")
body.addObject(groove2)
groove2.Profile = sketch14
groove2.ReferenceAxis = (sketch14, ["Axis0"])
groove2.Angle = 360

# Sketch on XZ plane
sketch15 = doc.addObject("Sketcher::SketchObject", "Sketch014")
body.addObject(sketch15)
sketch15.AttachmentSupport = (doc.XZ_Plane, [""])
sketch15.MapMode = "FlatFace"
sketch15.AttachmentOffset = App.Placement(App.Vector(0, 0, 25), App.Rotation())
sketch15.addGeometry([
    Part.LineSegment(App.Vector(25, 3, 0), App.Vector(25, -24, 0)),  # 0
    Part.LineSegment(App.Vector(25, -24, 0), App.Vector(26.8, -24, 0)),  # 1
    Part.LineSegment(App.Vector(26.8, -24, 0), App.Vector(26.8, -8, 0)),  # 2
    Part.LineSegment(App.Vector(26.8, -8, 0), App.Vector(28, -6.8, 0)),  # 3
    Part.LineSegment(App.Vector(28, -6.8, 0), App.Vector(28, 3, 0)),  # 4
    Part.LineSegment(App.Vector(28, 3, 0), App.Vector(25, 3, 0)),  # 5
], False)
sketch15.addGeometry(Part.LineSegment(App.Vector(25, -24, 0), App.Vector(25, 3, 0)), True)  # axis
sketch15.addConstraint([
    Sketcher.Constraint("Coincident", 0, 2, 1, 1),
    Sketcher.Constraint("Coincident", 1, 2, 2, 1),
    Sketcher.Constraint("Coincident", 2, 2, 3, 1),
    Sketcher.Constraint("Coincident", 3, 2, 4, 1),
    Sketcher.Constraint("Coincident", 4, 2, 5, 1),
    Sketcher.Constraint("Coincident", 5, 2, 0, 1),
    Sketcher.Constraint("Vertical", 0),
    Sketcher.Constraint("Horizontal", 1),
    Sketcher.Constraint("Vertical", 2),
    Sketcher.Constraint("Vertical", 4),
    Sketcher.Constraint("Horizontal", 5),
    Sketcher.Constraint("Vertical", 6),
    Sketcher.Constraint("Coincident", 6, 1, 0, 2),
    Sketcher.Constraint("Horizontal", 4, 2, 6, 2),
    Sketcher.Constraint("DistanceX", 5, 2, 5, 1, Q("3 mm")),
    Sketcher.Constraint("DistanceY", 0, 2, 0, 1, Q("27 mm")),
    Sketcher.Constraint("DistanceY", 2, 1, 2, 2, Q("16 mm")),
    Sketcher.Constraint("Angle", 3, Q("45 deg")),
    Sketcher.Constraint("DistanceX", 1, 1, 1, 2, Q("1.8 mm")),
    Sketcher.Constraint("DistanceX", -1, 1, 0, 2, Q("25 mm")),
    Sketcher.Constraint("DistanceY", 0, 2, -1, 1, Q("24 mm")),
])
groove3 = doc.addObject("PartDesign::Groove", "Groove002")
body.addObject(groove3)
groove3.Profile = sketch15
groove3.ReferenceAxis = (sketch15, ["Axis0"])
groove3.Angle = 360

# Sketch on XZ plane
sketch16 = doc.addObject("Sketcher::SketchObject", "Sketch015")
body.addObject(sketch16)
sketch16.AttachmentSupport = (doc.XZ_Plane, [""])
sketch16.MapMode = "FlatFace"
sketch16.AttachmentOffset = App.Placement(App.Vector(0, 0, -25), App.Rotation())
sketch16.addGeometry([
    Part.LineSegment(App.Vector(25, 3, 0), App.Vector(25, -24, 0)),  # 0
    Part.LineSegment(App.Vector(25, -24, 0), App.Vector(26.8, -24, 0)),  # 1
    Part.LineSegment(App.Vector(26.8, -24, 0), App.Vector(26.8, -8, 0)),  # 2
    Part.LineSegment(App.Vector(26.8, -8, 0), App.Vector(28, -6.8, 0)),  # 3
    Part.LineSegment(App.Vector(28, -6.8, 0), App.Vector(28, 3, 0)),  # 4
    Part.LineSegment(App.Vector(28, 3, 0), App.Vector(25, 3, 0)),  # 5
], False)
sketch16.addGeometry(Part.LineSegment(App.Vector(25, -24, 0), App.Vector(25, 3, 0)), True)  # axis
sketch16.addConstraint([
    Sketcher.Constraint("Coincident", 0, 2, 1, 1),
    Sketcher.Constraint("Coincident", 1, 2, 2, 1),
    Sketcher.Constraint("Coincident", 2, 2, 3, 1),
    Sketcher.Constraint("Coincident", 3, 2, 4, 1),
    Sketcher.Constraint("Coincident", 4, 2, 5, 1),
    Sketcher.Constraint("Coincident", 5, 2, 0, 1),
    Sketcher.Constraint("Vertical", 0),
    Sketcher.Constraint("Horizontal", 1),
    Sketcher.Constraint("Vertical", 2),
    Sketcher.Constraint("Vertical", 4),
    Sketcher.Constraint("Horizontal", 5),
    Sketcher.Constraint("Vertical", 6),
    Sketcher.Constraint("Coincident", 6, 1, 0, 2),
    Sketcher.Constraint("Horizontal", 4, 2, 6, 2),
    Sketcher.Constraint("DistanceX", 5, 2, 5, 1, Q("3 mm")),
    Sketcher.Constraint("DistanceY", 0, 2, 0, 1, Q("27 mm")),
    Sketcher.Constraint("DistanceY", 2, 1, 2, 2, Q("16 mm")),
    Sketcher.Constraint("Angle", 3, Q("45 deg")),
    Sketcher.Constraint("DistanceX", 1, 1, 1, 2, Q("1.8 mm")),
    Sketcher.Constraint("DistanceX", -1, 1, 0, 2, Q("25 mm")),
    Sketcher.Constraint("DistanceY", 0, 2, -1, 1, Q("24 mm")),
])
groove4 = doc.addObject("PartDesign::Groove", "Groove003")
body.addObject(groove4)
groove4.Profile = sketch16
groove4.ReferenceAxis = (sketch16, ["Axis0"])
groove4.Angle = 360

# Sketch on XY plane
sketch17 = doc.addObject("Sketcher::SketchObject", "Sketch016")
body.addObject(sketch17)
sketch17.AttachmentSupport = (doc.XY_Plane, [""])
sketch17.MapMode = "FlatFace"
sketch17.AttachmentOffset = App.Placement(App.Vector(0, 0, -20), App.Rotation())
sketch17.addGeometry([
    Part.ArcOfCircle(Part.Circle(App.Vector(25, 25, 0), App.Vector(0, 0, 1), 3.5), math.radians(-128), math.radians(-90)),  # 0
    Part.ArcOfCircle(Part.Circle(App.Vector(20.7, 19.5, 0), App.Vector(0, 0, 1), 3.5), math.radians(52), math.radians(90)),  # 1
    Part.LineSegment(App.Vector(20.7, 23, 0), App.Vector(9.5, 23, 0)),  # 2
    Part.ArcOfCircle(Part.Circle(App.Vector(9.5, 19.5, 0), App.Vector(0, 0, 1), 3.5), math.radians(90), math.radians(180)),  # 3
    Part.LineSegment(App.Vector(6, 19.5, 0), App.Vector(6, 9.5, 0)),  # 4
    Part.ArcOfCircle(Part.Circle(App.Vector(9.5, 9.5, 0), App.Vector(0, 0, 1), 3.5), math.radians(180), math.radians(270)),  # 5
    Part.LineSegment(App.Vector(9.5, 6, 0), App.Vector(23.5, 6, 0)),  # 6
    Part.ArcOfCircle(Part.Circle(App.Vector(23.5, 9.5, 0), App.Vector(0, 0, 1), 3.5), math.radians(-90), math.radians(0)),  # 7
    Part.LineSegment(App.Vector(27, 9.5, 0), App.Vector(27, 19.5, 0)),  # 8
    Part.ArcOfCircle(Part.Circle(App.Vector(25, 19.5, 0), App.Vector(0, 0, 1), 2), math.radians(0), math.radians(90)),  # 9
], False)
sketch17.addConstraint([
    Sketcher.Constraint("Tangent", 0, 1, 1, 1),
    Sketcher.Constraint("Tangent", 1, 2, 2, 1),
    Sketcher.Constraint("Tangent", 2, 2, 3, 1),
    Sketcher.Constraint("Tangent", 3, 2, 4, 1),
    Sketcher.Constraint("Tangent", 4, 2, 5, 1),
    Sketcher.Constraint("Tangent", 5, 2, 6, 1),
    Sketcher.Constraint("Tangent", 6, 2, 7, 1),
    Sketcher.Constraint("Tangent", 7, 2, 8, 1),
    Sketcher.Constraint("Tangent", 8, 2, 9, 1),
    Sketcher.Constraint("Tangent", 9, 2, 0, 2),
    Sketcher.Constraint("Horizontal", 2),
    Sketcher.Constraint("Vertical", 4),
    Sketcher.Constraint("Horizontal", 6),
    Sketcher.Constraint("Vertical", 8),
    Sketcher.Constraint("Equal", 0, 1),
    Sketcher.Constraint("Equal", 1, 3),
    Sketcher.Constraint("Equal", 3, 5),
    Sketcher.Constraint("Equal", 5, 7),
    Sketcher.Constraint("Horizontal", 3, 3, 9, 3),
    Sketcher.Constraint("Vertical", 0, 3, 9, 3),
    Sketcher.Constraint("Radius", 9, Q("2 mm")),
    Sketcher.Constraint("Radius", 0, Q("3.5 mm")),
    Sketcher.Constraint("DistanceX", 6, 1, 6, 2, Q("14 mm")),
    Sketcher.Constraint("DistanceY", 4, 2, 4, 1, Q("10 mm")),
    Sketcher.Constraint("DistanceX", -1, 1, 0, 3, Q("25 mm")),
    Sketcher.Constraint("DistanceY", -1, 1, 0, 3, Q("25 mm")),
])
pocket5 = doc.addObject("PartDesign::Pocket", "Pocket004")
body.addObject(pocket5)
pocket5.Profile = sketch17
pocket5.Type = "ThroughAll"
pocket5.Midplane = True

# Sketch on XY plane
sketch18 = doc.addObject("Sketcher::SketchObject", "Sketch017")
body.addObject(sketch18)
sketch18.AttachmentSupport = (doc.XY_Plane, [""])
sketch18.MapMode = "FlatFace"
sketch18.AttachmentOffset = App.Placement(App.Vector(0, 0, -5.8), App.Rotation())
sketch18.addGeometry([
    Part.Circle(App.Vector(19, 0, 0), App.Vector(0, 0, 1), 6),
    Part.Circle(App.Vector(-19, 0, 0), App.Vector(0, 0, 1), 6),
], False)
sketch18.addConstraint([
    Sketcher.Constraint("Equal", 0, 1),
    Sketcher.Constraint("Symmetric", 0, 3, 1, 3, -1, 1),
    Sketcher.Constraint("PointOnObject", 0, 3, -1),
    Sketcher.Constraint("Diameter", 0, Q("13 mm")),
    Sketcher.Constraint("DistanceX", -1, 1, 0, 3, Q("19 mm")),
])
pocket6 = doc.addObject("PartDesign::Pocket", "Pocket005")
body.addObject(pocket6)
pocket6.Profile = sketch18
pocket6.Type = "ThroughAll"

# Sketch on XY plane
sketch19 = doc.addObject("Sketcher::SketchObject", "Sketch018")
body.addObject(sketch19)
sketch19.AttachmentSupport = (doc.XY_Plane, [""])
sketch19.MapMode = "FlatFace"
sketch19.addGeometry([
    Part.LineSegment(App.Vector(8.5, 23, 0), App.Vector(-8.5, 23, 0)),  # 0
    Part.ArcOfCircle(Part.Circle(App.Vector(-8.5, 20, 0), App.Vector(0, 0, 1), 3), math.radians(90), math.radians(180)),  # 1
    Part.LineSegment(App.Vector(-11.5, 20, 0), App.Vector(-11.5, -20, 0)),  # 2
    Part.ArcOfCircle(Part.Circle(App.Vector(-8.5, -20, 0), App.Vector(0, 0, 1), 3), math.radians(180), math.radians(270)),  # 3
    Part.LineSegment(App.Vector(-8.5, -23, 0), App.Vector(8.5, -23, 0)),  # 4
    Part.ArcOfCircle(Part.Circle(App.Vector(8.5, -20, 0), App.Vector(0, 0, 1), 3), math.radians(-90), math.radians(0)),  # 5
    Part.LineSegment(App.Vector(11.5, -20, 0), App.Vector(11.5, 20, 0)),  # 6
    Part.ArcOfCircle(Part.Circle(App.Vector(8.5, 20, 0), App.Vector(0, 0, 1), 3), math.radians(0), math.radians(90)),  # 7
], False)
sketch19.addConstraint([
    Sketcher.Constraint("Tangent", 0, 2, 1, 1),
    Sketcher.Constraint("Tangent", 1, 2, 2, 1),
    Sketcher.Constraint("Tangent", 2, 2, 3, 1),
    Sketcher.Constraint("Tangent", 3, 2, 4, 1),
    Sketcher.Constraint("Tangent", 4, 2, 5, 1),
    Sketcher.Constraint("Tangent", 5, 2, 6, 1),
    Sketcher.Constraint("Tangent", 6, 2, 7, 1),
    Sketcher.Constraint("Tangent", 7, 2, 0, 1),
    Sketcher.Constraint("Horizontal", 0),
    Sketcher.Constraint("Vertical", 2),
    Sketcher.Constraint("Horizontal", 4),
    Sketcher.Constraint("Vertical", 6),
    Sketcher.Constraint("Equal", 1, 3),
    Sketcher.Constraint("Equal", 3, 5),
    Sketcher.Constraint("Equal", 5, 7),
    Sketcher.Constraint("Symmetric", 1, 3, 5, 3, -1, 1),
    Sketcher.Constraint("Radius", 1, Q("3 mm")),
    Sketcher.Constraint("DistanceX", 0, 2, 0, 1, Q("17 mm")),
    Sketcher.Constraint("DistanceY", 2, 2, 2, 1, Q("40 mm")),
])
pocket7 = doc.addObject("PartDesign::Pocket", "Pocket006")
body.addObject(pocket7)
pocket7.Profile = sketch19
pocket7.Type = "ThroughAll"
pocket7.Reversed = True

doc.recompute()
